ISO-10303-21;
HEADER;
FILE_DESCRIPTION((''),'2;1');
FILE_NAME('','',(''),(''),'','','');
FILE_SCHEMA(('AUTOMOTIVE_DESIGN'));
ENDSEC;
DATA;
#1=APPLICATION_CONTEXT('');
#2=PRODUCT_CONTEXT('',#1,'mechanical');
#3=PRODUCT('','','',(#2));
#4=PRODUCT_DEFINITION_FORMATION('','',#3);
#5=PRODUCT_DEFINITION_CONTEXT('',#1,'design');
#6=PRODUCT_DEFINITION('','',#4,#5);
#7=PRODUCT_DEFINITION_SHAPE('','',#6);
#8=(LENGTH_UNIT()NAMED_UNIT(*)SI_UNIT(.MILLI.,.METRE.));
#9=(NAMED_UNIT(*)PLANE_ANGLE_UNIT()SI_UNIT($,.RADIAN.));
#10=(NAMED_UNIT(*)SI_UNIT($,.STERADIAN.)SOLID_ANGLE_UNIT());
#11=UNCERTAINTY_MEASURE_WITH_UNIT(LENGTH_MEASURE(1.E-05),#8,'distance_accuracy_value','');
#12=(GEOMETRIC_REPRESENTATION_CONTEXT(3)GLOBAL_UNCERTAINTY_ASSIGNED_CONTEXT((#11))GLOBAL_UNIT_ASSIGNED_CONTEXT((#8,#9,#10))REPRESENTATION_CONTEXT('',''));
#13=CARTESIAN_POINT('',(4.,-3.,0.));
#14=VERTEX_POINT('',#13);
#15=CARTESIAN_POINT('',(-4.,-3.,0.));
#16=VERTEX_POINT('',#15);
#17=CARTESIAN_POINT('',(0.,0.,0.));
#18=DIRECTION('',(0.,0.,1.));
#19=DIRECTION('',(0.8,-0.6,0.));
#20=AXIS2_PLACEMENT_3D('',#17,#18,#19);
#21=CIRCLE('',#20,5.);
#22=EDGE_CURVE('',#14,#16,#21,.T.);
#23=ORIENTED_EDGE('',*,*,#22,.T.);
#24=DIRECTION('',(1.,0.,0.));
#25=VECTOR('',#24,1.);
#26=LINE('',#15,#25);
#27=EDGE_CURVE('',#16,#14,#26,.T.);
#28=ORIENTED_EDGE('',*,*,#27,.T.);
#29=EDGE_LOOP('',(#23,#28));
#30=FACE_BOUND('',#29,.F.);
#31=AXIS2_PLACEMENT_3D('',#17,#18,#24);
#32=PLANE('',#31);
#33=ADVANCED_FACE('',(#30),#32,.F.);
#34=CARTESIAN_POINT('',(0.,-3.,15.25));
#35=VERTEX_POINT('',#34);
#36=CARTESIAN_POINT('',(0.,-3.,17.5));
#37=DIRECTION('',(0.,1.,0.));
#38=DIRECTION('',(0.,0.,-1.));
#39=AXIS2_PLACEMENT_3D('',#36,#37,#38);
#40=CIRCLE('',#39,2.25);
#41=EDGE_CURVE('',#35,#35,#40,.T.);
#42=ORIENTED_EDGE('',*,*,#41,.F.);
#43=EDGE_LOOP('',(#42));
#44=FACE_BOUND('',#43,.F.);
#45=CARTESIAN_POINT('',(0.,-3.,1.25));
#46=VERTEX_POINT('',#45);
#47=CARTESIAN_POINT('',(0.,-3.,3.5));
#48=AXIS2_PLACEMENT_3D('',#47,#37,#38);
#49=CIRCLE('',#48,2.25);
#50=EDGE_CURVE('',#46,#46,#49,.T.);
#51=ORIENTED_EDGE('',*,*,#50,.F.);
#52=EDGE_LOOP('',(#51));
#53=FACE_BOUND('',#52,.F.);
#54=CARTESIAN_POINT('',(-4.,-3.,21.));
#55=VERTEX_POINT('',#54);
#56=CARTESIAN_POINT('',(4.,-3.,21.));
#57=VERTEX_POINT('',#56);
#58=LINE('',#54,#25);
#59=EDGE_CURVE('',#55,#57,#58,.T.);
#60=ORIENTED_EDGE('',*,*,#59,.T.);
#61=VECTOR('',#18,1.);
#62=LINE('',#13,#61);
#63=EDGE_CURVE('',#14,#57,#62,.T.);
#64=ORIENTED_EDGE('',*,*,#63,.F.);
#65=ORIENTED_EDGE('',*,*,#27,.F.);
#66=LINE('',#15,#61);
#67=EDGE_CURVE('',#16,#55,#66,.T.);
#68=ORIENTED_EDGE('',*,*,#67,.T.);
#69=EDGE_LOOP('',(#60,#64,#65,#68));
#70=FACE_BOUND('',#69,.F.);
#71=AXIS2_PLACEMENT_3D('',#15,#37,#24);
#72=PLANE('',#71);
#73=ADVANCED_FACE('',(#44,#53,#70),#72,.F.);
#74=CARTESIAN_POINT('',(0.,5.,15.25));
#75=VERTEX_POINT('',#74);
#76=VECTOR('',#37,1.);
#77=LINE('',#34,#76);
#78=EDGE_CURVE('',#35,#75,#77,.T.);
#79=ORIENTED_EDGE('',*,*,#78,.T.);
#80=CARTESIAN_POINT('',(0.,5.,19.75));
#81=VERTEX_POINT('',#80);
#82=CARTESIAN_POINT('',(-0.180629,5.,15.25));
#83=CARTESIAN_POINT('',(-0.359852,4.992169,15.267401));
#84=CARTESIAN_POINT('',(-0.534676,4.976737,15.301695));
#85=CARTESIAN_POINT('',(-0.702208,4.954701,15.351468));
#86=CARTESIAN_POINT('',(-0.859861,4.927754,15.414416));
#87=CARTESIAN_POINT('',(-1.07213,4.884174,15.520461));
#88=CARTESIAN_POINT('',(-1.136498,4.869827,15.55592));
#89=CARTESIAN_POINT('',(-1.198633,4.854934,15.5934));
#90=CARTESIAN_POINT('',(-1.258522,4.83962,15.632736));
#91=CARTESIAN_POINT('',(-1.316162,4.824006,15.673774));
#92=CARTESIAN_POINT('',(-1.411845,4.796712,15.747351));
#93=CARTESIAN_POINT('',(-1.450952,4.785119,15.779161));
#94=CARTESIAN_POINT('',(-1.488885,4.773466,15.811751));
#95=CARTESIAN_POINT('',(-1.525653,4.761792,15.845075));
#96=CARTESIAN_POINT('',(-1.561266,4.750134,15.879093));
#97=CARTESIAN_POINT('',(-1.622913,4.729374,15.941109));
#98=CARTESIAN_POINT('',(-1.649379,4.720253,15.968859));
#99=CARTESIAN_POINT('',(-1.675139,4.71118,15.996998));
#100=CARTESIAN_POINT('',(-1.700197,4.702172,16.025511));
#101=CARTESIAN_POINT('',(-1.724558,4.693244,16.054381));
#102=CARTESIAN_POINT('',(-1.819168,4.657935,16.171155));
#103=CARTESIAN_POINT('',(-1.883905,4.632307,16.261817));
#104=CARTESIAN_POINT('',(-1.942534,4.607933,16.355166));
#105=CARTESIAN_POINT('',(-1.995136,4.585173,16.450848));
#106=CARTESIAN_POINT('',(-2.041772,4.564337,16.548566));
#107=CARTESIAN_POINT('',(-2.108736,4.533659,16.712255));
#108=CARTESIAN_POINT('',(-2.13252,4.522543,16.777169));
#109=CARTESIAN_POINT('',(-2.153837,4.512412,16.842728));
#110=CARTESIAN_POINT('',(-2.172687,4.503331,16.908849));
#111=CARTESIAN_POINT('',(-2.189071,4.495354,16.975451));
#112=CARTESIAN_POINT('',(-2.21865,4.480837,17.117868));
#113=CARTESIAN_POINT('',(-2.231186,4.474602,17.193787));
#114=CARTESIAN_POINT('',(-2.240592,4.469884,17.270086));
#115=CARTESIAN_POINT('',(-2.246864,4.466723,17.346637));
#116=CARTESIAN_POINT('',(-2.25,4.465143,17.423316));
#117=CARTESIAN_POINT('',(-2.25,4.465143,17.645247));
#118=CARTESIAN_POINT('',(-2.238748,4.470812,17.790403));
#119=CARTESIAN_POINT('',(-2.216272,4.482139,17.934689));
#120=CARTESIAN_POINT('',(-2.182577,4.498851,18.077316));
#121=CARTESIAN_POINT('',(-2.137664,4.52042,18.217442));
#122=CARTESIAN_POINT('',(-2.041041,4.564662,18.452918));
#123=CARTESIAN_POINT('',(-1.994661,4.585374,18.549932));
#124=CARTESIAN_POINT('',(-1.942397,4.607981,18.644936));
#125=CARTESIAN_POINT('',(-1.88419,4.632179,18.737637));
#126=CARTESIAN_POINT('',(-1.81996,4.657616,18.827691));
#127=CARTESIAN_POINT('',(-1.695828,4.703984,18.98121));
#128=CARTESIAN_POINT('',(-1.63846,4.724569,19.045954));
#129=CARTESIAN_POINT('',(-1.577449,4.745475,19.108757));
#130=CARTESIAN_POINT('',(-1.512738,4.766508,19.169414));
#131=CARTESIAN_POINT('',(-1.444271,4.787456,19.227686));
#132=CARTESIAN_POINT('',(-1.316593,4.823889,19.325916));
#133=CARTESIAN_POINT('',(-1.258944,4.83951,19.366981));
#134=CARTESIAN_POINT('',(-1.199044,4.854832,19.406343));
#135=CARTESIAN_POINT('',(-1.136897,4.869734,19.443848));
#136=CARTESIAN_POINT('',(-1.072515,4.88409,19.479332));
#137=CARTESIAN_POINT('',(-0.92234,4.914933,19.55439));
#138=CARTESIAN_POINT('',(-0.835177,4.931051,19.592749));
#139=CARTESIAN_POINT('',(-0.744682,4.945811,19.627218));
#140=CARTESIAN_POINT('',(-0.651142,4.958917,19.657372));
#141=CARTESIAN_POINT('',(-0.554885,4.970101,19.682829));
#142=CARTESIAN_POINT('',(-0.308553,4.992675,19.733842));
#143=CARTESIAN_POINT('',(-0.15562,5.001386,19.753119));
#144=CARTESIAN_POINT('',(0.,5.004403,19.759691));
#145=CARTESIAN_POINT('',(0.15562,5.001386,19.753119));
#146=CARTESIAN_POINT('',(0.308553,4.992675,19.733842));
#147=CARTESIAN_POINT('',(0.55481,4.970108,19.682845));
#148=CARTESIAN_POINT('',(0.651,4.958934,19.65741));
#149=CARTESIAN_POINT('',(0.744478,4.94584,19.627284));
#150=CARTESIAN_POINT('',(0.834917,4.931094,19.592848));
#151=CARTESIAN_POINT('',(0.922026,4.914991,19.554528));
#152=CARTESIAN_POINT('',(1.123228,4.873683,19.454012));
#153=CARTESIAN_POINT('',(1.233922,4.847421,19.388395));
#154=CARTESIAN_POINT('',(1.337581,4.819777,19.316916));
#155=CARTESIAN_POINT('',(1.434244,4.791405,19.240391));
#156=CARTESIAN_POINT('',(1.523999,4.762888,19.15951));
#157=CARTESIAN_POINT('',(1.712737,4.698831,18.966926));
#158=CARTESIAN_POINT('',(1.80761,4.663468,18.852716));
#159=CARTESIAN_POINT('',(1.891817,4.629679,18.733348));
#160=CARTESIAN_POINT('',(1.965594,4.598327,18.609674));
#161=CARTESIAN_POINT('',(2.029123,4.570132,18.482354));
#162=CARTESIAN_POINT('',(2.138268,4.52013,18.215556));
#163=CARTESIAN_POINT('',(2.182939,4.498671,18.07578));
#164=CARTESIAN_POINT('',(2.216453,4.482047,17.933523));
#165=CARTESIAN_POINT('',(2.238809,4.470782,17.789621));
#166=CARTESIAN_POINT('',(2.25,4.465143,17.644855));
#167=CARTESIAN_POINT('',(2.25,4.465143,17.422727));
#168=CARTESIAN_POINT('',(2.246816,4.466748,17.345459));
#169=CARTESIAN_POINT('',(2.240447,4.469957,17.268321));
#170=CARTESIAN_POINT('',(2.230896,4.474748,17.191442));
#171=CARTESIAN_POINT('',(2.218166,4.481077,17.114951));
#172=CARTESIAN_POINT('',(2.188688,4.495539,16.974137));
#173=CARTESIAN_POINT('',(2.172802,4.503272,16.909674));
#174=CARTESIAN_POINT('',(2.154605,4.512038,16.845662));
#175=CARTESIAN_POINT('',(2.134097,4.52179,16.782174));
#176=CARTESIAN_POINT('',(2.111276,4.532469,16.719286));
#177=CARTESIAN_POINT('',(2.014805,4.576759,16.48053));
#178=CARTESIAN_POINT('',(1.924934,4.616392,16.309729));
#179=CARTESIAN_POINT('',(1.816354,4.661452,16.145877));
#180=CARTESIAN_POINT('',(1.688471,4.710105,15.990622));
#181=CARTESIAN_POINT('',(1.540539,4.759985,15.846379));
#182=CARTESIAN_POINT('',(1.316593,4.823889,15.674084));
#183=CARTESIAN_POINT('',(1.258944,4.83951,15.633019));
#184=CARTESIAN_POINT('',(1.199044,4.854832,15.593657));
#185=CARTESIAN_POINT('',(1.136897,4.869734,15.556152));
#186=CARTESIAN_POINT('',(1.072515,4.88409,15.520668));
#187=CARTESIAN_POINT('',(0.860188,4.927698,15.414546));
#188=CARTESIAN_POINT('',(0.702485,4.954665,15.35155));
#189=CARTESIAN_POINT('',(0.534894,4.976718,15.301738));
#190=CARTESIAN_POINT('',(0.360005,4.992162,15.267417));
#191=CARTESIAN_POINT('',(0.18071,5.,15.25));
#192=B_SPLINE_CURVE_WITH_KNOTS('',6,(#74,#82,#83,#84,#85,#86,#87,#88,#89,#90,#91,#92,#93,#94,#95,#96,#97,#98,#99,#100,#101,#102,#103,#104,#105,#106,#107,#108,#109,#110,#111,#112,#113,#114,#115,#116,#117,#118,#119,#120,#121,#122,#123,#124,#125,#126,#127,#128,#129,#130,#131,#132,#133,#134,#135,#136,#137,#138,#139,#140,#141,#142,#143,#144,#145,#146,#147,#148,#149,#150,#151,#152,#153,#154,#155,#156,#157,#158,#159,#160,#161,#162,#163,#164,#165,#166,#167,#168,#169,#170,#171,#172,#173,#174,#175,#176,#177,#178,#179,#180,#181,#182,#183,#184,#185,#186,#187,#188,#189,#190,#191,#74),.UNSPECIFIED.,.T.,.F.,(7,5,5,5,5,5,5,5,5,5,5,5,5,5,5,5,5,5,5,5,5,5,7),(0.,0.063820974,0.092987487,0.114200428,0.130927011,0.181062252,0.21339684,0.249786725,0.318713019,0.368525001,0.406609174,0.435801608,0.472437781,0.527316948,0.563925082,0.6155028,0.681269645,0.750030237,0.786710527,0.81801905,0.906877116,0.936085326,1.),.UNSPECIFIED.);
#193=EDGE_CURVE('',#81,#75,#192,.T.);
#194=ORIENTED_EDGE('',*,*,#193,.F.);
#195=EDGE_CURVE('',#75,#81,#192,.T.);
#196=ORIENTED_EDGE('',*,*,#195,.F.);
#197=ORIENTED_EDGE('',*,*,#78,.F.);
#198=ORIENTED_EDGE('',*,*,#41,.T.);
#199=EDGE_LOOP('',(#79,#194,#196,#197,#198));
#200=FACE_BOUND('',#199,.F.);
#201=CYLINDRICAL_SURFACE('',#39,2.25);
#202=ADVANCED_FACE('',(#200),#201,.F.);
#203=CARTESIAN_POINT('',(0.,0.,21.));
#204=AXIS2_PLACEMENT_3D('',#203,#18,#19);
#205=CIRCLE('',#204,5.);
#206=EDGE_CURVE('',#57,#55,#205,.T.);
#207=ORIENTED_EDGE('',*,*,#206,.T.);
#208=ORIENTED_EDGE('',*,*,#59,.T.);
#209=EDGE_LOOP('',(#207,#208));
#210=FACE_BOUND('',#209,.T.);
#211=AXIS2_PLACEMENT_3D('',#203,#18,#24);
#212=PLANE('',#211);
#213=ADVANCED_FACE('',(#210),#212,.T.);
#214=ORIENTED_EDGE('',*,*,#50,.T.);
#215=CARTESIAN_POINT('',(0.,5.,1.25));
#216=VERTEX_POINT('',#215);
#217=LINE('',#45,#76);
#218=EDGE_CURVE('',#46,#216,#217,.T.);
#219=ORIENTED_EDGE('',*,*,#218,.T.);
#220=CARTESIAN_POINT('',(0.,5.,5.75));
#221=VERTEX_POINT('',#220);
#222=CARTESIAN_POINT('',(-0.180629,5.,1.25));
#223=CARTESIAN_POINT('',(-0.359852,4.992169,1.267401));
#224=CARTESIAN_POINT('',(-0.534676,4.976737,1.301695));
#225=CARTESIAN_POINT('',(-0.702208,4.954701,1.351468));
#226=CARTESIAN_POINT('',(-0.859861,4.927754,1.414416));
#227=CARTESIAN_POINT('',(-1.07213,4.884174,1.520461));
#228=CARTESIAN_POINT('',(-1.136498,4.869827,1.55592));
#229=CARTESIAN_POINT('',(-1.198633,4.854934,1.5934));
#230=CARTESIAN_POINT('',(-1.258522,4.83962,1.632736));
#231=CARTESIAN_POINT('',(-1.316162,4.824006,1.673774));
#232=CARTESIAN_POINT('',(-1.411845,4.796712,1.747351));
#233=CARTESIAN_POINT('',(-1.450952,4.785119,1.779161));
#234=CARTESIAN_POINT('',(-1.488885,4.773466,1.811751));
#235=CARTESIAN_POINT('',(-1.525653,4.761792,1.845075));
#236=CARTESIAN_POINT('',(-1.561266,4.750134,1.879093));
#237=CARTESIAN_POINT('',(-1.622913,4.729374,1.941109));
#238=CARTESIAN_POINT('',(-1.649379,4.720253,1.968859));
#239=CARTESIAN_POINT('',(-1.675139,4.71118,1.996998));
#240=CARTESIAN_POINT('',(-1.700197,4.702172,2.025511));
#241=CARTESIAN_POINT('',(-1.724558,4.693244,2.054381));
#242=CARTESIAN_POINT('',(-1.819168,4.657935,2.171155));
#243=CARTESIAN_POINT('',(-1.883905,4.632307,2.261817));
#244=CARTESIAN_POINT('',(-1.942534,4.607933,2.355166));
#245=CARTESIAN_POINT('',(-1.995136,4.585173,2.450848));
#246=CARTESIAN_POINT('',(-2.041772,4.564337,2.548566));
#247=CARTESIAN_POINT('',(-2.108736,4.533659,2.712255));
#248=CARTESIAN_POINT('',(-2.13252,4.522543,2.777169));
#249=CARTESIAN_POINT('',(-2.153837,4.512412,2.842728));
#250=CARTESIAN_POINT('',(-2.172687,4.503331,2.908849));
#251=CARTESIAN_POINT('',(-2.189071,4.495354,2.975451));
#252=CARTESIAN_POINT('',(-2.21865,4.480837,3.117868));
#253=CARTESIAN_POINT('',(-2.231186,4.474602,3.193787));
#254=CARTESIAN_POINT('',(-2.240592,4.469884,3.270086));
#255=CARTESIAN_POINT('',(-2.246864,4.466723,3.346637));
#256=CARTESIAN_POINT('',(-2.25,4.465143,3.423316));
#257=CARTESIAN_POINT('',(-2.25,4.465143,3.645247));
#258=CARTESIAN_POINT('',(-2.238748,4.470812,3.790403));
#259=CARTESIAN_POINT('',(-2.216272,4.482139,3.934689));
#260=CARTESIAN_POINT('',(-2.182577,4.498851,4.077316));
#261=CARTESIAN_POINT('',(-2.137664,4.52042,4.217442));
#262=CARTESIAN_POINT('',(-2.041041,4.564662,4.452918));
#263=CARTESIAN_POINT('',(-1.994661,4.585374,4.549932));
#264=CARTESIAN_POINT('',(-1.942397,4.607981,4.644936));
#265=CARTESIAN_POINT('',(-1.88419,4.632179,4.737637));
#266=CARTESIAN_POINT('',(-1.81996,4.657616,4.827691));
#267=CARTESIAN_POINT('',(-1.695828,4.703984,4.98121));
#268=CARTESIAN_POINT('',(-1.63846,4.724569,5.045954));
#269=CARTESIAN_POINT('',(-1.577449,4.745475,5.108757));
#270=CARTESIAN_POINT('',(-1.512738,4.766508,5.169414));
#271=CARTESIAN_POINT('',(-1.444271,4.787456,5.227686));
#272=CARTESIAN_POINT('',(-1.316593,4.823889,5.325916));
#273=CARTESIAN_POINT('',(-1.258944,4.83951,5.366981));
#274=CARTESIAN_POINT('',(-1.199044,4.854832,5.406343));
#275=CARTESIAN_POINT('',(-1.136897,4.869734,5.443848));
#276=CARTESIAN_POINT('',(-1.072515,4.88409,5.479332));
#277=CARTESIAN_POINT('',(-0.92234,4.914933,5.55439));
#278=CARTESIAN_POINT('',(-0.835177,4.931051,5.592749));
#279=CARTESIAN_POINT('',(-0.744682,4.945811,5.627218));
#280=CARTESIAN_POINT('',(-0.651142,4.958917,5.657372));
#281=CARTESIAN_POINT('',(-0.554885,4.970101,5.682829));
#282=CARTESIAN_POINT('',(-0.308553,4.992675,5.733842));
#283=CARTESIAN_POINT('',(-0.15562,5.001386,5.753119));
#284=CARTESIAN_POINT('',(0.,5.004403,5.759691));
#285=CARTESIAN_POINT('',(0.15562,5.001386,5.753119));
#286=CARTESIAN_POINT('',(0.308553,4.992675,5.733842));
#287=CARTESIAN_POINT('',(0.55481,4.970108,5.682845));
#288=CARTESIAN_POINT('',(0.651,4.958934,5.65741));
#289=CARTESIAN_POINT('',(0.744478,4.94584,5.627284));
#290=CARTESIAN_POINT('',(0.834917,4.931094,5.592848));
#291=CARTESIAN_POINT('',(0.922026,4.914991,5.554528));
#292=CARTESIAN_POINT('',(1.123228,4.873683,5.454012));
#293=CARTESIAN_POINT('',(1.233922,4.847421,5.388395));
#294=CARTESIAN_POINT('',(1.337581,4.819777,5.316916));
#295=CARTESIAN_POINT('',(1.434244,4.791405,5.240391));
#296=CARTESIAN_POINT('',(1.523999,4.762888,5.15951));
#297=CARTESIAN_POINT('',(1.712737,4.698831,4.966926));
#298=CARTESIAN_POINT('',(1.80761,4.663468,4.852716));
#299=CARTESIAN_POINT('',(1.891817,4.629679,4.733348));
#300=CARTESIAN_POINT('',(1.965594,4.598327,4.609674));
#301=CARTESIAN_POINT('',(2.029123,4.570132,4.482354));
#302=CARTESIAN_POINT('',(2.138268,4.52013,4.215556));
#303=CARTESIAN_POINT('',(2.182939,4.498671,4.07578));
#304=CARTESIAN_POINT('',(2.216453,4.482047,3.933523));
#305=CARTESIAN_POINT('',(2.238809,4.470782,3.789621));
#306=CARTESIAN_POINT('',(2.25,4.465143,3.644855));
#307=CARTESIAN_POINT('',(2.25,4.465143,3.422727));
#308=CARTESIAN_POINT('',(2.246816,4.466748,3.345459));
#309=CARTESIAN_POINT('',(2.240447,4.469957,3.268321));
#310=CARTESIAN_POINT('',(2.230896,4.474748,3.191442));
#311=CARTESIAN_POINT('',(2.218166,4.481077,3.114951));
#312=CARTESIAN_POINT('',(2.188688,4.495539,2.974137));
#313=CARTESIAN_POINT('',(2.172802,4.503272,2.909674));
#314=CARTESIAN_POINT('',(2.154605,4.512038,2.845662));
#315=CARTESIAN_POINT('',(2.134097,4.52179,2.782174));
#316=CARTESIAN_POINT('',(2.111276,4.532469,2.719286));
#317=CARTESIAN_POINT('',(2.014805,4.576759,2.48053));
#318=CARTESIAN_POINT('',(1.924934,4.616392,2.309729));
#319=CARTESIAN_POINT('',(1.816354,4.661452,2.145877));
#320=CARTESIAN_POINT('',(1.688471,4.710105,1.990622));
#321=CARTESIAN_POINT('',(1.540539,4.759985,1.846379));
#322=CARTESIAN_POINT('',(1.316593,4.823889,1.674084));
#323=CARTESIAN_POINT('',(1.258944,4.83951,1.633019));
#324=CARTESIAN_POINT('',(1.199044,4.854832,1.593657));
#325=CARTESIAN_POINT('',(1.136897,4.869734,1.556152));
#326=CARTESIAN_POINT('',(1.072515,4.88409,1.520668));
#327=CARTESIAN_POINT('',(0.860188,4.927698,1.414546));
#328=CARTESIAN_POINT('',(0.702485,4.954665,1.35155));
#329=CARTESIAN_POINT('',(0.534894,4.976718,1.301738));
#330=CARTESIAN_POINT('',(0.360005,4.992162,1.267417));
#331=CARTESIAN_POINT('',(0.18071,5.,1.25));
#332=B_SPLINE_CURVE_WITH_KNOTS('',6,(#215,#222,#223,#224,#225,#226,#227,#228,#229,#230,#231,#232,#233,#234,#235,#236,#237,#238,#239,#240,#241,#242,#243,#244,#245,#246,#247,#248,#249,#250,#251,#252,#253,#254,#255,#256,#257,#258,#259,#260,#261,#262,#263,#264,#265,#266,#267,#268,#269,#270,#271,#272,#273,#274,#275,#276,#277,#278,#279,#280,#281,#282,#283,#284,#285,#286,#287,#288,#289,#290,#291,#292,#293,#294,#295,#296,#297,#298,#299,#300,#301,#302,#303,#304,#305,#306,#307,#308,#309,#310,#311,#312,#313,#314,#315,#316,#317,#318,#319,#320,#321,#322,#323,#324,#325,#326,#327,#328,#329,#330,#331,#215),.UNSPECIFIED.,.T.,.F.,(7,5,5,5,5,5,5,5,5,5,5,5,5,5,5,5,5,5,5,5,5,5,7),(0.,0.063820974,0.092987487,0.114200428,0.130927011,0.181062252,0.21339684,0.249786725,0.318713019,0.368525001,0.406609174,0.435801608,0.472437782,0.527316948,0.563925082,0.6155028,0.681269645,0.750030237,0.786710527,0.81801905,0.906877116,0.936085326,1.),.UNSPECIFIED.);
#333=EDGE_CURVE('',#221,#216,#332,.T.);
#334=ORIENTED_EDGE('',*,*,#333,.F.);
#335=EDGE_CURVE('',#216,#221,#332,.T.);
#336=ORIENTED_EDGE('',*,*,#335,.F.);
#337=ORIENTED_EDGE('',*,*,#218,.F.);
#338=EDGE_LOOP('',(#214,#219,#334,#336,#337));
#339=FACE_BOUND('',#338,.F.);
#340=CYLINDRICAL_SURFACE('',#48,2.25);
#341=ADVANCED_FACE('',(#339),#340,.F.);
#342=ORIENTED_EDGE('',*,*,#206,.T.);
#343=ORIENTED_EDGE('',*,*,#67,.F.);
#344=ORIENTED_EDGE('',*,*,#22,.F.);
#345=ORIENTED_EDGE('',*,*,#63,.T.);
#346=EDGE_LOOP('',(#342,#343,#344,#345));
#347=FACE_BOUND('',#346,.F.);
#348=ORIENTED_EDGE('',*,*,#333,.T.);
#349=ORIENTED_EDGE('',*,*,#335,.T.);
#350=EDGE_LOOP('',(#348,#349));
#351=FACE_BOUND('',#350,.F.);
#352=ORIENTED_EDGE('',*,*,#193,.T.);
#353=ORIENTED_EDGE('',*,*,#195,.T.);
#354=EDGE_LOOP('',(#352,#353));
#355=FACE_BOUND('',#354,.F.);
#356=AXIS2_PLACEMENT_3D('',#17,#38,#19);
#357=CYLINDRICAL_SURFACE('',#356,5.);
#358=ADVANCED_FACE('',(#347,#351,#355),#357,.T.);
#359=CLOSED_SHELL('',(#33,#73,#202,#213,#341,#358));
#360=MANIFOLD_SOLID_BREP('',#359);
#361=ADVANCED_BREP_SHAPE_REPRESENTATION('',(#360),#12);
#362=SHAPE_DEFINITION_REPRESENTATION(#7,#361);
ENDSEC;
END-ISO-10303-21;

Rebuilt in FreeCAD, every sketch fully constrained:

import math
import FreeCAD as App
import Part
import Sketcher
from FreeCAD import Vector
Q = App.Units.Quantity

doc = App.newDocument("Part")
body = doc.addObject("PartDesign::Body", "Body")

# Sketch on XY plane
sketch1 = body.newObject("Sketcher::SketchObject", "Sketch")
sketch1.AttachmentSupport = (doc.getObject("XY_Plane"), [""])
sketch1.MapMode = "FlatFace"
sketch1.addGeometry([
    Part.LineSegment(Vector(-4, -3, 0), Vector(4, -3, 0)),
    Part.ArcOfCircle(Part.Circle(Vector(0, 0, 0), Vector(0, 0, 1), 5), math.radians(-37), math.radians(217)),
], False)
sketch1.addConstraint([
    Sketcher.Constraint("Coincident", 0, 1, 1, 2),
    Sketcher.Constraint("Coincident", 1, 1, 0, 2),
    Sketcher.Constraint("Horizontal", 0),
    Sketcher.Constraint("Coincident", 1, 3, -1, 1),
    Sketcher.Constraint("Radius", 1, Q("5 mm")),
    Sketcher.Constraint("DistanceX", 0, 1, 0, 2, Q("8 mm")),
])
pad1 = body.newObject("PartDesign::Pad", "Pad")
pad1.Profile = sketch1
pad1.Length = 21

# Sketch on XZ plane
sketch2 = body.newObject("Sketcher::SketchObject", "Sketch001")
sketch2.AttachmentSupport = (doc.getObject("XZ_Plane"), [""])
sketch2.MapMode = "FlatFace"
sketch2.AttachmentOffset = App.Placement(Vector(0, 0, 3), App.Rotation())
sketch2.addGeometry([
    Part.Circle(Vector(0, 17.5, 0), Vector(0, 0, 1), 2.2),
    Part.Circle(Vector(0, 3.5, 0), Vector(0, 0, 1), 2.2),
], False)
sketch2.addConstraint([
    Sketcher.Constraint("Equal", 0, 1),
    Sketcher.Constraint("PointOnObject", 0, 3, -2),
    Sketcher.Constraint("PointOnObject", 1, 3, -2),
    Sketcher.Constraint("Diameter", 0, Q("4.5 mm")),
    Sketcher.Constraint("DistanceY", 1, 3, 0, 3, Q("14 mm")),
    Sketcher.Constraint("DistanceY", -1, 1, 0, 3, Q("17.5 mm")),
])
doc.recompute()
hole = body.newObject("PartDesign::Hole", "Hole")
hole.Profile = sketch2
hole.ThreadType = "None"
hole.Diameter = 4.5
hole.DepthType = "Dimension"
hole.Depth = 8
hole.DrillPoint = "Angled"
hole.DrillPointAngle = 118

doc.recompute()
